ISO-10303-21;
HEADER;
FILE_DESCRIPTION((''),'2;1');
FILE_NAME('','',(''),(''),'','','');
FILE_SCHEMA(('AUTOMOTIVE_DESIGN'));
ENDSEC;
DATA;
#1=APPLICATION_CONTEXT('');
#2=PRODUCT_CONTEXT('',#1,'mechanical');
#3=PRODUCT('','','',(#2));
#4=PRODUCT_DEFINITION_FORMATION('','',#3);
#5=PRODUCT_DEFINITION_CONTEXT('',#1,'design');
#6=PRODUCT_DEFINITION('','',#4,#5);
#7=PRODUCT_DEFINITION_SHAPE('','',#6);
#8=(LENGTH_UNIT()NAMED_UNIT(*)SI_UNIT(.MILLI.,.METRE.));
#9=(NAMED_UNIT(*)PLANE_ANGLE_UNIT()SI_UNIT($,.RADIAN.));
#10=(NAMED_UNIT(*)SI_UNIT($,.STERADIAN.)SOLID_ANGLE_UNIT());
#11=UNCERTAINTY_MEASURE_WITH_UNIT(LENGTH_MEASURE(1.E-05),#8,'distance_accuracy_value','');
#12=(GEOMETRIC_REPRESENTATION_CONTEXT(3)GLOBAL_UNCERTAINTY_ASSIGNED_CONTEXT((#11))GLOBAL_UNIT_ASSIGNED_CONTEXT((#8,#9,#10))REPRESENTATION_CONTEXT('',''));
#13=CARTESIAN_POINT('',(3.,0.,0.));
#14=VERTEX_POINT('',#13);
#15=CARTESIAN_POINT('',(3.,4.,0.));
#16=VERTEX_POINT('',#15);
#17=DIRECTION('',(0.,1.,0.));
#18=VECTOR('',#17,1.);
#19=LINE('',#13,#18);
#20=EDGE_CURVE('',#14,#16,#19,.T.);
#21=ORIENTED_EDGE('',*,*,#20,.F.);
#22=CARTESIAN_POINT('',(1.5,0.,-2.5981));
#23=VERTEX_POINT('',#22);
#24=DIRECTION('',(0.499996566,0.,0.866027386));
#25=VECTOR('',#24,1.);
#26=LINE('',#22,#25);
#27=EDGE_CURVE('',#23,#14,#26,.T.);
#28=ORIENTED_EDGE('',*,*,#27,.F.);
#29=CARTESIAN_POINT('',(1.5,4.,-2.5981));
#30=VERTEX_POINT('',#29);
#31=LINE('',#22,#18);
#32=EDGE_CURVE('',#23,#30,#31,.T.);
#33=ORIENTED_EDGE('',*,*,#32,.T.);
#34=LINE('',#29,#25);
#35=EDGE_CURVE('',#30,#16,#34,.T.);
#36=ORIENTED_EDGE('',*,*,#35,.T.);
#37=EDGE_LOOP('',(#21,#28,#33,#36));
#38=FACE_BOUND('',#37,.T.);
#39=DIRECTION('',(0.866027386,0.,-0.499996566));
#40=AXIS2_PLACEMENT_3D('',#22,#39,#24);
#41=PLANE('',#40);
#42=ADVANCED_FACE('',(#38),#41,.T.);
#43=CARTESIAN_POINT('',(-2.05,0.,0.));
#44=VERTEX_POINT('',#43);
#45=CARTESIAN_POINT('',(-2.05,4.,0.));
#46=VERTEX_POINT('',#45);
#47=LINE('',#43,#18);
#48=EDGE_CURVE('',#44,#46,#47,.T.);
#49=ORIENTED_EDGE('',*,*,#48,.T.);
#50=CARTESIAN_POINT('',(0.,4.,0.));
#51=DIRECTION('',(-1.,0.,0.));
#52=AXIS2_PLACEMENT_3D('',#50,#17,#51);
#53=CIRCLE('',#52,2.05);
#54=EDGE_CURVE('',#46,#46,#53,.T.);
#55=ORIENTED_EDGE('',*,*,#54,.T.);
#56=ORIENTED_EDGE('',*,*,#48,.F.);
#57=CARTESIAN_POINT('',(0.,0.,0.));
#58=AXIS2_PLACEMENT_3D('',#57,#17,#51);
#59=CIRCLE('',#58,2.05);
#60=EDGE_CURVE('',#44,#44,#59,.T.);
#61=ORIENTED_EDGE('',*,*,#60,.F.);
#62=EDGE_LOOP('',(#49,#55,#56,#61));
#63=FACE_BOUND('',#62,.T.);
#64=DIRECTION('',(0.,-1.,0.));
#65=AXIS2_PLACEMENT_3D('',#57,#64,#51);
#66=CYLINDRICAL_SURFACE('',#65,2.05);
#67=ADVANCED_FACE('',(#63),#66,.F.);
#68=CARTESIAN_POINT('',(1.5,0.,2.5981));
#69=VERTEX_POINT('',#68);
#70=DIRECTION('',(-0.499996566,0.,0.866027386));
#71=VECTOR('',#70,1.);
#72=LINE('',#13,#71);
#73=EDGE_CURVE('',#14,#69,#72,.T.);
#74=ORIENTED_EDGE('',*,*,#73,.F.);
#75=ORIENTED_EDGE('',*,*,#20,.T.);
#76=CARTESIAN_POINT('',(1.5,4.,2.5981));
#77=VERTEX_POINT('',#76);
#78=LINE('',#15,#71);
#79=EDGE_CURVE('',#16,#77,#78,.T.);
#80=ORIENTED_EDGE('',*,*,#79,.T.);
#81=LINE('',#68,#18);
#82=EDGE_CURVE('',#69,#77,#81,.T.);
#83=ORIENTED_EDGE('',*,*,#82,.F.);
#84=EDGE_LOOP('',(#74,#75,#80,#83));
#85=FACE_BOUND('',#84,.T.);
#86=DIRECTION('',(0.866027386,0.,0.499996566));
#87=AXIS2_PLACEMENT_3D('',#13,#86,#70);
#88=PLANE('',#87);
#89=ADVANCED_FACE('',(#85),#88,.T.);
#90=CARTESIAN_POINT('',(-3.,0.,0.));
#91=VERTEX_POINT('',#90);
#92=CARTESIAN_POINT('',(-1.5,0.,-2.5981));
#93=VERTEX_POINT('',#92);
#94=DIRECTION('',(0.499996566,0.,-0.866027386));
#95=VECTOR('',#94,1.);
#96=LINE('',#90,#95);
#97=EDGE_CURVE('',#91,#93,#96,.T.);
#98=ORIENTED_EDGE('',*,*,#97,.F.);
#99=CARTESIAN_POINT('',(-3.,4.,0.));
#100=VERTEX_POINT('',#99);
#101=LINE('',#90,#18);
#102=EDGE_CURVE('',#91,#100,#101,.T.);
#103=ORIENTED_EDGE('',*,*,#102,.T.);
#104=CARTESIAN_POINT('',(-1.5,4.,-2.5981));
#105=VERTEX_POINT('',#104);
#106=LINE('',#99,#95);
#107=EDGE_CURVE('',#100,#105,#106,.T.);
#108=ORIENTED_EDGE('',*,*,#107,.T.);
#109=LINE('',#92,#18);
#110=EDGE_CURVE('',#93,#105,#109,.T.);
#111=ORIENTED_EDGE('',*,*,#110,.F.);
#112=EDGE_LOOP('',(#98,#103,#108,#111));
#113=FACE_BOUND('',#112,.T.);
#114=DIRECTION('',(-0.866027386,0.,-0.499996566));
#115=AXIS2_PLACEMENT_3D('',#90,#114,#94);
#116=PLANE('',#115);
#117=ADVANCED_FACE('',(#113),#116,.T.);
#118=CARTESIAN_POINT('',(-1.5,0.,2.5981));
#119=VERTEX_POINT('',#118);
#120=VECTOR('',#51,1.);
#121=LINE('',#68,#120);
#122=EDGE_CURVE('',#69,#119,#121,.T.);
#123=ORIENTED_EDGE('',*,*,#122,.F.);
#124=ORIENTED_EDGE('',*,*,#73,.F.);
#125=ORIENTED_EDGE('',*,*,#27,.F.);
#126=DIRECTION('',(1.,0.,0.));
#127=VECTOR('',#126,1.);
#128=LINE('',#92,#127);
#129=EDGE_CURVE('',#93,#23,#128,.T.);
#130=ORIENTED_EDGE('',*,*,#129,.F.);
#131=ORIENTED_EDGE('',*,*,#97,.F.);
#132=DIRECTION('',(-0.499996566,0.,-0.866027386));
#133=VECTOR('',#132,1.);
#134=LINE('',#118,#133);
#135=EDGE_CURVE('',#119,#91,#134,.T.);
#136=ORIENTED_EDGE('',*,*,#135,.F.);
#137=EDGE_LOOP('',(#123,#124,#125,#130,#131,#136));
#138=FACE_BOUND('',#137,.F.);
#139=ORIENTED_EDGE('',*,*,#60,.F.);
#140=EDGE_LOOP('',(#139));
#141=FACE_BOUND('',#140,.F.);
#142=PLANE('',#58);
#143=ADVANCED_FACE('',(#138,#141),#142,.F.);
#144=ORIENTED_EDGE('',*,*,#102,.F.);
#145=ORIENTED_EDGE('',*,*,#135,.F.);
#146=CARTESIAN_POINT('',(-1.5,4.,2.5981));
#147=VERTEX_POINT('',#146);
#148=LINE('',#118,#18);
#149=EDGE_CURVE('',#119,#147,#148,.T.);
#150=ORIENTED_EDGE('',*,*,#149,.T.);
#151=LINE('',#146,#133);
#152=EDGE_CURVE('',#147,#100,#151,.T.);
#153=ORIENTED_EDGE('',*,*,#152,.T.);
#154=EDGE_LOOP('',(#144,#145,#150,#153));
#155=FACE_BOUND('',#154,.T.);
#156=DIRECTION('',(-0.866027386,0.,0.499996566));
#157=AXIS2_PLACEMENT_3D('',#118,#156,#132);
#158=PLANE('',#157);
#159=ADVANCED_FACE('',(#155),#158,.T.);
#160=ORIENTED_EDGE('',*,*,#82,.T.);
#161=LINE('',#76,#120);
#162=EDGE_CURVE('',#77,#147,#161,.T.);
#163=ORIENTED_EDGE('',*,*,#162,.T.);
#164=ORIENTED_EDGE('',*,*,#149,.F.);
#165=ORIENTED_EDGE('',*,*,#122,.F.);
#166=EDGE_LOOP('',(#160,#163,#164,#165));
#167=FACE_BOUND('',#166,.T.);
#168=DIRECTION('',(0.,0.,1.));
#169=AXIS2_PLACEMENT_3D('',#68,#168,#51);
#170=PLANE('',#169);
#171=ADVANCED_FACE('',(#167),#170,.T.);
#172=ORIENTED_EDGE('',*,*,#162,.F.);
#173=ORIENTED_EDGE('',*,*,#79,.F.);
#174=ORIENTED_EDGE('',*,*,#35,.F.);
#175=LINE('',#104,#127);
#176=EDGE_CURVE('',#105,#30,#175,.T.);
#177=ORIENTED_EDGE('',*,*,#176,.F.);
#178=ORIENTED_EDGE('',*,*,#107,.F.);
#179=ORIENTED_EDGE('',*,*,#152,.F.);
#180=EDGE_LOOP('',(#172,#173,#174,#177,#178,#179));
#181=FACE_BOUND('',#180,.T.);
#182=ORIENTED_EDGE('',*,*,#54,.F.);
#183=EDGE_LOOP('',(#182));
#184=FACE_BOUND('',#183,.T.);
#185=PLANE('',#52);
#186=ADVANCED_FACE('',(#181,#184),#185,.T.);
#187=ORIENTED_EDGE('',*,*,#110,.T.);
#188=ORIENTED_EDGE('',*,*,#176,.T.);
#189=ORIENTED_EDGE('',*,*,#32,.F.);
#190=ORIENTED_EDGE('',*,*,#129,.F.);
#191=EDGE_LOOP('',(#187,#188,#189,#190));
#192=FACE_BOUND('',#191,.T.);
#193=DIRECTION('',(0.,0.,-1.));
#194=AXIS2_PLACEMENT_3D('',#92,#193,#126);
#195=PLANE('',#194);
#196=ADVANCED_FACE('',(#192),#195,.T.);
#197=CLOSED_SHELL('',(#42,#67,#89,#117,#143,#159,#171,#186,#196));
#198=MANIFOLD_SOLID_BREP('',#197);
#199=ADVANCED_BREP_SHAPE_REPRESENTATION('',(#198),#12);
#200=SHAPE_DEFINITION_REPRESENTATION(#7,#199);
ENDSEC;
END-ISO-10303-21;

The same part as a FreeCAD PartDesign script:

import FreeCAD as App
import Part
import Sketcher

V = App.Vector

doc = App.newDocument("Part")
body = doc.addObject("PartDesign::Body", "Body")

# Sketch on XZ plane
sketch1 = doc.addObject("Sketcher::SketchObject", "Sketch")
body.addObject(sketch1)
sketch1.AttachmentSupport = (doc.XZ_Plane, [""])
sketch1.MapMode = "FlatFace"
sketch1.addGeometry([
    Part.LineSegment(V(1.5, 2.6, 0), V(3, 0, 0)),  # 0
    Part.LineSegment(V(3, 0, 0), V(1.5, -2.6, 0)),  # 1
    Part.LineSegment(V(1.5, -2.6, 0), V(-1.5, -2.6, 0)),  # 2
    Part.LineSegment(V(-1.5, -2.6, 0), V(-3, 0, 0)),  # 3
    Part.LineSegment(V(-3, 0, 0), V(-1.5, 2.6, 0)),  # 4
    Part.LineSegment(V(-1.5, 2.6, 0), V(1.5, 2.6, 0)),  # 5
    Part.Circle(V(0, 0, 0), V(0, 0, 1), 2),  # 6
], False)
sketch1.addConstraint([
    Sketcher.Constraint("Coincident", 0, 2, 1, 1),
    Sketcher.Constraint("Coincident", 1, 2, 2, 1),
    Sketcher.Constraint("Coincident", 2, 2, 3, 1),
    Sketcher.Constraint("Coincident", 3, 2, 4, 1),
    Sketcher.Constraint("Coincident", 4, 2, 5, 1),
    Sketcher.Constraint("Coincident", 5, 2, 0, 1),
    Sketcher.Constraint("Horizontal", 2),
    Sketcher.Constraint("Horizontal", 5),
    Sketcher.Constraint("Coincident", 6, 3, -1, 1),
    Sketcher.Constraint("Symmetric", 0, 2, 3, 2, -1, 1),
    Sketcher.Constraint("Symmetric", 1, 2, 4, 2, -1, 1),
    Sketcher.Constraint("PointOnObject", 0, 2, -1),
    Sketcher.Constraint("Parallel", 0, 3),
    Sketcher.Constraint("Vertical", 2, 2, 4, 2),
    Sketcher.Constraint("Diameter", 6, 4.1),
    Sketcher.Constraint("DistanceX", 2, 2, 2, 1, 3.0),
    Sketcher.Constraint("Distance", 0, 3.0),
    Sketcher.Constraint("DistanceX", -1, 1, 0, 2, 3.0),
])
pad1 = doc.addObject("PartDesign::Pad", "Pad")
body.addObject(pad1)
pad1.Profile = sketch1
pad1.Length = 4
pad1.Reversed = True

doc.recompute()
